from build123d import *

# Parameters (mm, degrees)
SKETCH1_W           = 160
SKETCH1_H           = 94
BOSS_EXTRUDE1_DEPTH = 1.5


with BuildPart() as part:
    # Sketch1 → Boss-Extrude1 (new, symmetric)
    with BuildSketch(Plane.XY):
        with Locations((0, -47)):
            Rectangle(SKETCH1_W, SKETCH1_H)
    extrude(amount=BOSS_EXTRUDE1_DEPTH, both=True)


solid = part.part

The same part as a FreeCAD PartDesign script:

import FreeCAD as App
import Part
import Sketcher
from FreeCAD import Vector
Q = App.Units.Quantity

doc = App.newDocument("Part")
params = doc.addObject("Spreadsheet::Sheet", "Params")
for row, (alias, value) in enumerate([
    ("sketch1_width", "160 mm"),
    ("sketch1_height", "94 mm"),
    ("pad1_length", "3 mm"),
], start=1):
    params.set(f"A{row}", alias)
    params.set(f"B{row}", "=" + value)
    params.setAlias(f"B{row}", alias)

body = doc.addObject("PartDesign::Body", "Body")

sketch1 = doc.addObject("Sketcher::SketchObject", "Sketch")
body.addObject(sketch1)
sketch1.AttachmentSupport = (doc.XY_Plane, [""])
sketch1.MapMode = "FlatFace"
sketch1.addGeometry([
    Part.LineSegment(Vector(-80, 0, 0), Vector(-80, -94, 0)),
    Part.LineSegment(Vector(-80, -94, 0), Vector(80, -94, 0)),
    Part.LineSegment(Vector(80, -94, 0), Vector(80, 0, 0)),
    Part.LineSegment(Vector(80, 0, 0), Vector(-80, 0, 0)),
], False)
sketch1.addConstraint([
    Sketcher.Constraint("Coincident", 0, 2, 1, 1),
    Sketcher.Constraint("Coincident", 1, 2, 2, 1),
    Sketcher.Constraint("Coincident", 2, 2, 3, 1),
    Sketcher.Constraint("Coincident", 3, 2, 0, 1),
    Sketcher.Constraint("Vertical", 0),
    Sketcher.Constraint("Horizontal", 1),
    Sketcher.Constraint("Vertical", 2),
    Sketcher.Constraint("Horizontal", 3),
    Sketcher.Constraint("Symmetric", 2, 2, 3, 2, -1, 1),
    Sketcher.Constraint("DistanceX", 1, 1, 1, 2, Q("160 mm")),
    Sketcher.Constraint("DistanceY", 0, 2, 0, 1, Q("94 mm")),
])
sketch1.setExpression("Constraints[9]", "Params.sketch1_width")
sketch1.setExpression("Constraints[10]", "Params.sketch1_height")
pad1 = doc.addObject("PartDesign::Pad", "Pad")
body.addObject(pad1)
pad1.Profile = sketch1
pad1.setExpression("Length", "Params.pad1_length")
pad1.Midplane = True

doc.recompute()
